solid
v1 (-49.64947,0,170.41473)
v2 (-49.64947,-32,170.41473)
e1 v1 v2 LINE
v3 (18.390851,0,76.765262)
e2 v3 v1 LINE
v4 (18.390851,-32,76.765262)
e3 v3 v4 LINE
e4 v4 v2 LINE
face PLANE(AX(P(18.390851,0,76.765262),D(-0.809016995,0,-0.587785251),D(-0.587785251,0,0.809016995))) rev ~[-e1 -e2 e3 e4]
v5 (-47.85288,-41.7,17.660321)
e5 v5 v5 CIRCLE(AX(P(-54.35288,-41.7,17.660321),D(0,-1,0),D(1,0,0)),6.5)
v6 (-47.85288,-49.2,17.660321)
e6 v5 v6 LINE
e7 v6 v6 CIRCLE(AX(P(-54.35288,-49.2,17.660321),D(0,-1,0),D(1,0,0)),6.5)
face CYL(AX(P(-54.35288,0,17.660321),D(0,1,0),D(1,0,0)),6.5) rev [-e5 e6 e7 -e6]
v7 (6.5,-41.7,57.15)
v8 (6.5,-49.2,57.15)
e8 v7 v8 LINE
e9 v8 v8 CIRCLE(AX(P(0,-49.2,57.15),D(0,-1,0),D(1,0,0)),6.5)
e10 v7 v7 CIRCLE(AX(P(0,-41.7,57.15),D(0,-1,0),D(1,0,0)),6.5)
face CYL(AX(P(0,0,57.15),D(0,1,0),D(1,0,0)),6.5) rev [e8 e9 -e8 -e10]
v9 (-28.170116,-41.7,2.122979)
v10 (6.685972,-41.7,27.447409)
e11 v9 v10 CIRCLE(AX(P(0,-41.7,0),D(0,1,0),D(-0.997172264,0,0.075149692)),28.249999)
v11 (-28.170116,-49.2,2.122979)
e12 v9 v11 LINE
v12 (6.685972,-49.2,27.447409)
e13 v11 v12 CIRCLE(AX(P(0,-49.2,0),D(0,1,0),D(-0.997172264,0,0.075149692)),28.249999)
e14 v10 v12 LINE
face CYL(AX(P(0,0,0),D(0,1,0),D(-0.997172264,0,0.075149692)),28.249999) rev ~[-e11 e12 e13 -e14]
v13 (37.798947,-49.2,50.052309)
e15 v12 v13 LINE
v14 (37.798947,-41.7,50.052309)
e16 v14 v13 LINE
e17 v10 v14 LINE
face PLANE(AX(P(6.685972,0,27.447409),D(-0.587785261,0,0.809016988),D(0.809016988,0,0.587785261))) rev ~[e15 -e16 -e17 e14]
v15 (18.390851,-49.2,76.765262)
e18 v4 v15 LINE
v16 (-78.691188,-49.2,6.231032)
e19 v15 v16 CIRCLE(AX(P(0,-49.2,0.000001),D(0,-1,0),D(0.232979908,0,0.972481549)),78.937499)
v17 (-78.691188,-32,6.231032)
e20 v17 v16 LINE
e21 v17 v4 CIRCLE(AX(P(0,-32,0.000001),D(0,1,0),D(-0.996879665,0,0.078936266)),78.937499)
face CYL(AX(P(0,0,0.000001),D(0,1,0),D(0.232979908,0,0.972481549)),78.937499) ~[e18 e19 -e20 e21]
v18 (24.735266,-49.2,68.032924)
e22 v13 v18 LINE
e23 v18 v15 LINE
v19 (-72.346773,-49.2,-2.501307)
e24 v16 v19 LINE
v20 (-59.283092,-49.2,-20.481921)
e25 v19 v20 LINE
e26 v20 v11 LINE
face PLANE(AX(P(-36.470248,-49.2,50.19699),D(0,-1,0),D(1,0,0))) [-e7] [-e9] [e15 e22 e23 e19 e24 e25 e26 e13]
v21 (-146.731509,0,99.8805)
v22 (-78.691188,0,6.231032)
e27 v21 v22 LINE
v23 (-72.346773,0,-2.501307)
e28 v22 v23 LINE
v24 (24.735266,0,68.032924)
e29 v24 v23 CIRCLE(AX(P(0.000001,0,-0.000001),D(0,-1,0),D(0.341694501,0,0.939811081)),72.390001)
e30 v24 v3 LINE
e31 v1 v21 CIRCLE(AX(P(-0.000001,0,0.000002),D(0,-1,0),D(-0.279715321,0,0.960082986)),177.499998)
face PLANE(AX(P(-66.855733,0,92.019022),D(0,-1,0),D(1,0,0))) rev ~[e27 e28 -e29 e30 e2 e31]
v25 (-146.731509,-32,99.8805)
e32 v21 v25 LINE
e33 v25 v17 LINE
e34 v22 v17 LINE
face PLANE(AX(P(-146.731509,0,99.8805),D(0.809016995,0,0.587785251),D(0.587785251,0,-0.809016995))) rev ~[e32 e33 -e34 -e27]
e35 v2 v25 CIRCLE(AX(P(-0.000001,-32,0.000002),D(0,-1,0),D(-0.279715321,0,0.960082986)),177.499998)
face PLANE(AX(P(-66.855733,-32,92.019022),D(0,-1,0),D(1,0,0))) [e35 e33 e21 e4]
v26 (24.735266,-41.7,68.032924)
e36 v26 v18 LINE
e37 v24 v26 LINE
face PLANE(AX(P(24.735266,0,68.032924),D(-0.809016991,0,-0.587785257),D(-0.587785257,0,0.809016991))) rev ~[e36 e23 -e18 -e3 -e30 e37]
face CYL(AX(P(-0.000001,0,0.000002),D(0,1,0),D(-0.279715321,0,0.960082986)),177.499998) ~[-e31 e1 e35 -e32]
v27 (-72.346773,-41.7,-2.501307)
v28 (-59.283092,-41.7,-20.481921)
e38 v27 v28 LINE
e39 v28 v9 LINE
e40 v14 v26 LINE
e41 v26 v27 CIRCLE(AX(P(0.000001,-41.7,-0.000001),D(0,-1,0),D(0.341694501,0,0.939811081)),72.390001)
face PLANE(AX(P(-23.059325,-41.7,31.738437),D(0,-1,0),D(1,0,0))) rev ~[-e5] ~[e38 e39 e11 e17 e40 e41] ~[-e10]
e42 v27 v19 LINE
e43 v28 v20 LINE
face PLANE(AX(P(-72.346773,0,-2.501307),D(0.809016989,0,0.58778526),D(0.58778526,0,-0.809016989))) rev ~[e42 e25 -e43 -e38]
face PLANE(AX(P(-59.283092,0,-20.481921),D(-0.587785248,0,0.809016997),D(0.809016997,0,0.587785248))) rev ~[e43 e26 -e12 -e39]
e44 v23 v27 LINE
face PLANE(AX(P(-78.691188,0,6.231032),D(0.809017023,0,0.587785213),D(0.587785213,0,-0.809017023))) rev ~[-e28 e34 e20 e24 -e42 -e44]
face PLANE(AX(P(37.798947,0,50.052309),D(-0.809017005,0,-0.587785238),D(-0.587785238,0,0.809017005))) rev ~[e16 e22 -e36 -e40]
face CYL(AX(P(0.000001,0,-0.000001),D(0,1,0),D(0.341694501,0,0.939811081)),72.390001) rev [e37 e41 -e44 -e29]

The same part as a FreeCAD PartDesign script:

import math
import FreeCAD as App
import Part
import Sketcher
Q = App.Units.Quantity

doc = App.newDocument("Part")
body = doc.addObject("PartDesign::Body", "Body")

# Sketch on XZ plane
sketch1 = body.newObject("Sketcher::SketchObject", "Sketch")
sketch1.AttachmentSupport = (doc.getObject("XZ_Plane"), [""])
sketch1.MapMode = "FlatFace"
sketch1.addGeometry([
    Part.LineSegment(App.Vector(24.735266, 68.032924, 0), App.Vector(18.390851, 76.765262, 0)),  # 0
    Part.ArcOfCircle(Part.Circle(App.Vector(0, 0.000001, 0), App.Vector(0, 0, 1), 78.937499), math.radians(76.527425), math.radians(175.472575)),  # 1
    Part.LineSegment(App.Vector(-78.691188, 6.231032, 0), App.Vector(-72.346773, -2.501307, 0)),  # 2
    Part.LineSegment(App.Vector(-72.346773, -2.501307, 0), App.Vector(-59.283092, -20.481921, 0)),  # 3
    Part.LineSegment(App.Vector(-59.283092, -20.481921, 0), App.Vector(-28.170116, 2.122979, 0)),  # 4
    Part.ArcOfCircle(Part.Circle(App.Vector(0, 0, 0), App.Vector(0, 0, 1), 28.249999), math.radians(76.309823), math.radians(175.690177)),  # 5
    Part.LineSegment(App.Vector(6.685972, 27.447409, 0), App.Vector(37.798947, 50.052309, 0)),  # 6
    Part.LineSegment(App.Vector(37.798947, 50.052309, 0), App.Vector(24.735266, 68.032924, 0)),  # 7
    Part.Circle(App.Vector(-54.35288, 17.660321, 0), App.Vector(0, 0, 1), 6.5),  # 8
    Part.Circle(App.Vector(0, 57.15, 0), App.Vector(0, 0, 1), 6.5),  # 9
], False)
sketch1.addConstraint([
    Sketcher.Constraint("Coincident", 0, 2, 1, 1),
    Sketcher.Constraint("Coincident", 1, 2, 2, 1),
    Sketcher.Constraint("Coincident", 2, 2, 3, 1),
    Sketcher.Constraint("Coincident", 3, 2, 4, 1),
    Sketcher.Constraint("Coincident", 4, 2, 5, 2),
    Sketcher.Constraint("Coincident", 5, 1, 6, 1),
    Sketcher.Constraint("Coincident", 6, 2, 7, 1),
    Sketcher.Constraint("Coincident", 7, 2, 0, 1),
    Sketcher.Constraint("Coincident", 1, 3, -1, 1),
    Sketcher.Constraint("Coincident", 5, 3, -1, 1),
    Sketcher.Constraint("Equal", 8, 9),
    Sketcher.Constraint("PointOnObject", 9, 3, -2),
    Sketcher.Constraint("Parallel", 0, 2),
    Sketcher.Constraint("Parallel", 2, 3),
    Sketcher.Constraint("Perpendicular", 3, 4),
    Sketcher.Constraint("Parallel", 4, 6),
    Sketcher.Constraint("Perpendicular", 6, 7),
    Sketcher.Constraint("Equal", 0, 2),
    Sketcher.Constraint("Equal", 4, 6),
    Sketcher.Constraint("Equal", 3, 7),
    Sketcher.Constraint("Diameter", 8, 13.0),
    Sketcher.Constraint("Angle", 0, Q("126 deg")),
    Sketcher.Constraint("Radius", 5, 28.249999),
    Sketcher.Constraint("Radius", 1, 78.937499),
    Sketcher.Constraint("DistanceY", -1, 1, 9, 3, 57.15),
    Sketcher.Constraint("DistanceY", 3, 2, 4, 2, 22.6049),
    Sketcher.Constraint("Distance", 3, 22.225261),
    Sketcher.Constraint("DistanceX", 8, 3, -1, 1, 54.35288),
    Sketcher.Constraint("DistanceY", -1, 1, 8, 3, 17.660321),
    Sketcher.Constraint("DistanceX", -1, 1, 0, 2, 18.390851),
])
pad1 = body.newObject("PartDesign::Pad", "Pad")
pad1.Profile = sketch1
pad1.Length = 49.2

# Sketch on XZ plane
sketch2 = body.newObject("Sketcher::SketchObject", "Sketch001")
sketch2.AttachmentSupport = (doc.getObject("XZ_Plane"), [""])
sketch2.MapMode = "FlatFace"
sketch2.addGeometry([
    Part.LineSegment(App.Vector(18, 77, 0), App.Vector(-50, 170, 0)),
    Part.ArcOfCircle(Part.Circle(App.Vector(0, 0, 0), App.Vector(0, 0, 1), 177), math.radians(106), math.radians(146)),
    Part.LineSegment(App.Vector(-147, 100, 0), App.Vector(-79, 6, 0)),
    Part.ArcOfCircle(Part.Circle(App.Vector(0, 0, 0), App.Vector(0, 0, 1), 79), math.radians(77), math.radians(175)),
], False)
sketch2.addConstraint([
    Sketcher.Constraint("Coincident", 0, 2, 1, 1),
    Sketcher.Constraint("Coincident", 1, 2, 2, 1),
    Sketcher.Constraint("Coincident", 2, 2, 3, 2),
    Sketcher.Constraint("Coincident", 3, 1, 0, 1),
    Sketcher.Constraint("Coincident", 1, 3, -1, 1),
    Sketcher.Constraint("Coincident", 3, 3, -1, 1),
    Sketcher.Constraint("Parallel", 0, 2),
    Sketcher.Constraint("Equal", 0, 2),
    Sketcher.Constraint("Radius", 1, 177.499998),
    Sketcher.Constraint("Angle", 0, Q("126 deg")),
    Sketcher.Constraint("Radius", 3, 78.937499),
    Sketcher.Constraint("DistanceY", -1, 1, 1, 2, 99.8805),
])
pad2 = body.newObject("PartDesign::Pad", "Pad001")
pad2.Profile = sketch2
pad2.Length = 32

# Sketch on XZ plane
sketch3 = body.newObject("Sketcher::SketchObject", "Sketch002")
sketch3.AttachmentSupport = (doc.getObject("XZ_Plane"), [""])
sketch3.MapMode = "FlatFace"
sketch3.addGeometry([
    Part.LineSegment(App.Vector(38, 50, 0), App.Vector(25, 68, 0)),  # 0
    Part.ArcOfCircle(Part.Circle(App.Vector(0, 0, 0), App.Vector(0, 0, 1), 72), math.radians(70), math.radians(182)),  # 1
    Part.LineSegment(App.Vector(-72, -3, 0), App.Vector(-59, -20, 0)),  # 2
    Part.LineSegment(App.Vector(-59, -20, 0), App.Vector(-28, 2, 0)),  # 3
    Part.ArcOfCircle(Part.Circle(App.Vector(0, 0, 0), App.Vector(0, 0, 1), 28), math.radians(76), math.radians(176)),  # 4
    Part.LineSegment(App.Vector(7, 27, 0), App.Vector(38, 50, 0)),  # 5
    Part.Circle(App.Vector(-54, 18, 0), App.Vector(0, 0, 1), 6),  # 6
    Part.Circle(App.Vector(0, 57, 0), App.Vector(0, 0, 1), 6),  # 7
], False)
sketch3.addConstraint([
    Sketcher.Constraint("Coincident", 0, 2, 1, 1),
    Sketcher.Constraint("Coincident", 1, 2, 2, 1),
    Sketcher.Constraint("Coincident", 2, 2, 3, 1),
    Sketcher.Constraint("Coincident", 3, 2, 4, 2),
    Sketcher.Constraint("Coincident", 4, 1, 5, 1),
    Sketcher.Constraint("Coincident", 5, 2, 0, 1),
    Sketcher.Constraint("Coincident", 1, 3, -1, 1),
    Sketcher.Constraint("Coincident", 4, 3, -1, 1),
    Sketcher.Constraint("Equal", 6, 7),
    Sketcher.Constraint("PointOnObject", 7, 3, -2),
    Sketcher.Constraint("Parallel", 0, 2),
    Sketcher.Constraint("Perpendicular", 2, 3),
    Sketcher.Constraint("Parallel", 3, 5),
    Sketcher.Constraint("Equal", 0, 2),
    Sketcher.Constraint("Equal", 3, 5),
    Sketcher.Constraint("Diameter", 6, 13.0),
    Sketcher.Constraint("Angle", 0, Q("125.999999 deg")),
    Sketcher.Constraint("Radius", 1, 72.390001),
    Sketcher.Constraint("Radius", 4, 28.249999),
    Sketcher.Constraint("DistanceY", -1, 1, 7, 3, 57.15),
    Sketcher.Constraint("DistanceY", 2, 2, 3, 2, 22.6049),
    Sketcher.Constraint("Distance", 2, 22.225261),
    Sketcher.Constraint("DistanceX", 6, 3, -1, 1, 54.35288),
    Sketcher.Constraint("DistanceY", -1, 1, 6, 3, 17.660321),
])
pocket1 = body.newObject("PartDesign::Pocket", "Pocket")
pocket1.Profile = sketch3
pocket1.Length = 41.7
pocket1.Reversed = True

doc.recompute()
